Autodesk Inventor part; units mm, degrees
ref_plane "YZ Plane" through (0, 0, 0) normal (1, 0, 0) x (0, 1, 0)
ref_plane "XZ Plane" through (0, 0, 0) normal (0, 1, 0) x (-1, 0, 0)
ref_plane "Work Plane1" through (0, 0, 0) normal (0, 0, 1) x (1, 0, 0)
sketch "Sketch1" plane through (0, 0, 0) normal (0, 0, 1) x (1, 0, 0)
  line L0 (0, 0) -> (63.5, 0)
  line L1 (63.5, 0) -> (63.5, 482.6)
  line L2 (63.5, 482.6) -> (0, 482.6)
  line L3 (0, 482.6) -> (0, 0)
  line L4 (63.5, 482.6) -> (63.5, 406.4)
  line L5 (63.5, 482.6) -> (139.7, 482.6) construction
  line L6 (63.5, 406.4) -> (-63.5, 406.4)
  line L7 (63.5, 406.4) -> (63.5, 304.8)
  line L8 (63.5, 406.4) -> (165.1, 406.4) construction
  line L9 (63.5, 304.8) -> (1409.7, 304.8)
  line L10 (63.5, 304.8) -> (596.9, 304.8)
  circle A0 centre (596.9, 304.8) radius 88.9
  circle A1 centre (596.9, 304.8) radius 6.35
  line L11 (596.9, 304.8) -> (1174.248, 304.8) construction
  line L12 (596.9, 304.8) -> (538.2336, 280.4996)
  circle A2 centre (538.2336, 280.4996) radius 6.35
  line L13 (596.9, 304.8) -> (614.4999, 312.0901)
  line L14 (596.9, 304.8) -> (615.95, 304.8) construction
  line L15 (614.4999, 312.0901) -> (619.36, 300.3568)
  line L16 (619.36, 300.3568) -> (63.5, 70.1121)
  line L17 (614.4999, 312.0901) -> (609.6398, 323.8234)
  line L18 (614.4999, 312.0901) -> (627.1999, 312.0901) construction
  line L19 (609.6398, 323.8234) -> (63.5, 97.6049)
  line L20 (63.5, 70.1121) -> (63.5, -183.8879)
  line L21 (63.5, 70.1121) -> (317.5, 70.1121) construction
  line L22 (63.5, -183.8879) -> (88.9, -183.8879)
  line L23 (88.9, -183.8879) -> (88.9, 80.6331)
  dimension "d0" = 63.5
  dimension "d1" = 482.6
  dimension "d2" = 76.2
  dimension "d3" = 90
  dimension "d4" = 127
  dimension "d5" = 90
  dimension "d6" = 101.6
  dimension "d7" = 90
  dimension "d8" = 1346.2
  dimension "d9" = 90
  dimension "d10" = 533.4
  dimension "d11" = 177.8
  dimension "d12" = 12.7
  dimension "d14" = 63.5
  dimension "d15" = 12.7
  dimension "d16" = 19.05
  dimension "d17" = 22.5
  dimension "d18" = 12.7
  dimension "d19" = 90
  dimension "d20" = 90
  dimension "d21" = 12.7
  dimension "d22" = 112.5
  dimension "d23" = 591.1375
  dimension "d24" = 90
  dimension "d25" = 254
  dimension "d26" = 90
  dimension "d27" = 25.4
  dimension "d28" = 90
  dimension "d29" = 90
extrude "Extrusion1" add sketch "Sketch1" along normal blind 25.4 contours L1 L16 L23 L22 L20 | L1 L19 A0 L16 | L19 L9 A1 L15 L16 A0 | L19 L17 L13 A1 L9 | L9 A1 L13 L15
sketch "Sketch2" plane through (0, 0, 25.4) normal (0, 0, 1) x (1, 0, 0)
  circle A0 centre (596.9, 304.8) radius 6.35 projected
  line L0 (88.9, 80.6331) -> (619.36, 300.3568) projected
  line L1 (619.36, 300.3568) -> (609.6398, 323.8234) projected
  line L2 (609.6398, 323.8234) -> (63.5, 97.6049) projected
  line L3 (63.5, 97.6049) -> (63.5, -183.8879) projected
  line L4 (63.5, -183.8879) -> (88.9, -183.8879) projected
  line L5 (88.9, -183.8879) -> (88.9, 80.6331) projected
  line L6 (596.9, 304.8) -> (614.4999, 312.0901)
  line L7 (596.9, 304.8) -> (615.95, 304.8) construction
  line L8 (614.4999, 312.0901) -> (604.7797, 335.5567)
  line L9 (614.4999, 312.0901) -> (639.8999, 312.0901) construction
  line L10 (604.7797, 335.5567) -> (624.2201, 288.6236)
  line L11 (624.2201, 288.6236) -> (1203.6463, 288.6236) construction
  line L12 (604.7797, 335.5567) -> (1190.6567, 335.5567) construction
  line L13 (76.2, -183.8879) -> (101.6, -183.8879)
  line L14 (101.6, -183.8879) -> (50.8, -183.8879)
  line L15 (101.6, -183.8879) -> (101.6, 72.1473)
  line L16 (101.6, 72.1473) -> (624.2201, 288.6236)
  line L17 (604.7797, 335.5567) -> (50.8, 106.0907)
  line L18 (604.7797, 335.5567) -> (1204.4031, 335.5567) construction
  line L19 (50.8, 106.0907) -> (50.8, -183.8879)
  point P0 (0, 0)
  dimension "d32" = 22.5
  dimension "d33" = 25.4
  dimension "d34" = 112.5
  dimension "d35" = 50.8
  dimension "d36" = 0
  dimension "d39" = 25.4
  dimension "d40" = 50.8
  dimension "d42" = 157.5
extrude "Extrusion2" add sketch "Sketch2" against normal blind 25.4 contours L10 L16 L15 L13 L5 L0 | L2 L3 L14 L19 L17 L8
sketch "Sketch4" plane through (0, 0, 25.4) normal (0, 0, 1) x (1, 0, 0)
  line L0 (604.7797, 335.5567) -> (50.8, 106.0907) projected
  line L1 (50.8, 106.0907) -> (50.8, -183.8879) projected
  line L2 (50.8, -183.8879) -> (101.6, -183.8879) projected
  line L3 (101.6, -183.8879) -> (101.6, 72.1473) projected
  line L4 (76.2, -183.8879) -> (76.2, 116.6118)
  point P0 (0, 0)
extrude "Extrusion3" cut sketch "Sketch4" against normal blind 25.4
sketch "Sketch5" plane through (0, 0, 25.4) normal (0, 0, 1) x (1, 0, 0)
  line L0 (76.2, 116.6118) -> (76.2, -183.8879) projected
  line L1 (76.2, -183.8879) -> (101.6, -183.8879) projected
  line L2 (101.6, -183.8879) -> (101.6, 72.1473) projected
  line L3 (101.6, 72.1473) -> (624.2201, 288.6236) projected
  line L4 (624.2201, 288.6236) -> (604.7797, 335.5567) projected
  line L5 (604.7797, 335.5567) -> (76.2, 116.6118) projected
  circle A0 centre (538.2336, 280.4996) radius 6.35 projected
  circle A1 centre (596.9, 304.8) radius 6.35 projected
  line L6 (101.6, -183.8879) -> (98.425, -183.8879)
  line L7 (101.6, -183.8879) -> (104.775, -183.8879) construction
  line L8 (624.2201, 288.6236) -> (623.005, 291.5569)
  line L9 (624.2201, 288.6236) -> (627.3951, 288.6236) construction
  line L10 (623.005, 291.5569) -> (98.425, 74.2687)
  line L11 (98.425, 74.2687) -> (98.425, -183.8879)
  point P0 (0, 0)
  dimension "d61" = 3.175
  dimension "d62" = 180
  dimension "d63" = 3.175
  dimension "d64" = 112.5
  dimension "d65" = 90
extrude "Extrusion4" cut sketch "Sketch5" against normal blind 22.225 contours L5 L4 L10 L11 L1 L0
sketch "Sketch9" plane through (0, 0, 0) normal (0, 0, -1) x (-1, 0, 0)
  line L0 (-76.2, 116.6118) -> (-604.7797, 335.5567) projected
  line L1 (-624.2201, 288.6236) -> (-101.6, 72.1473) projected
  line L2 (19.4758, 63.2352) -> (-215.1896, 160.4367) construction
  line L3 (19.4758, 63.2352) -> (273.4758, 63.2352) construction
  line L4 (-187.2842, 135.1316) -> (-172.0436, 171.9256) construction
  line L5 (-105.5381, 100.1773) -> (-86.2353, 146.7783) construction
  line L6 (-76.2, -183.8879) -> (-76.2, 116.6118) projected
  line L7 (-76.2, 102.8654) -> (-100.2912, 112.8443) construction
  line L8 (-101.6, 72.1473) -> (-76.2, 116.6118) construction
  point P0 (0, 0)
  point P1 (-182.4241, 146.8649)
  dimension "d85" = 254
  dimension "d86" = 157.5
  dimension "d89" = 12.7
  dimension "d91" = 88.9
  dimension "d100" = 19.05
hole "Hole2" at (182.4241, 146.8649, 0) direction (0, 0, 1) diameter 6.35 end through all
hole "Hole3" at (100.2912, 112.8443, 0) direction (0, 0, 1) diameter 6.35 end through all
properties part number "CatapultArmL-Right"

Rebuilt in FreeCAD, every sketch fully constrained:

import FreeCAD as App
import Part
import Sketcher
Q = App.Units.Quantity


def add_polygon(sketch, points):
    """Adds a closed chain of lines whose ends are joined by coincident constraints."""
    first, n = sketch.GeometryCount, len(points)
    for a, b in zip(points, points[1:] + points[:1]):
        sketch.addGeometry(Part.LineSegment(App.Vector(*a, 0), App.Vector(*b, 0)), False)
    for i in range(n):
        sketch.addConstraint(Sketcher.Constraint("Coincident", first + i, 2, first + (i + 1) % n, 1))

doc = App.newDocument("Part")
body = doc.addObject("PartDesign::Body", "Body")

sketch1 = doc.addObject("Sketcher::SketchObject", "Sketch")
body.addObject(sketch1)
sketch1.AttachmentSupport = (doc.XY_Plane, [""])
sketch1.MapMode = "FlatFace"
add_polygon(sketch1, [(64, -184), (89, -184), (89, 81), (619, 300), (610, 324), (64, 98)])
sketch1.addGeometry(Part.Circle(App.Vector(597, 305, 0), App.Vector(0, 0, 1), 6), False)
sketch1.addGeometry(Part.Circle(App.Vector(538, 280, 0), App.Vector(0, 0, 1), 6), False)
sketch1.addConstraint([
    Sketcher.Constraint("Horizontal", 0),
    Sketcher.Constraint("Vertical", 1),
    Sketcher.Constraint("Vertical", 5),
    Sketcher.Constraint("Equal", 6, 7),
    Sketcher.Constraint("Perpendicular", 2, 3),
    Sketcher.Constraint("Perpendicular", 3, 4),
    Sketcher.Constraint("Diameter", 6, Q("0.5 in")),
    Sketcher.Constraint("DistanceX", 0, 1, 0, 2, Q("1 in")),
    Sketcher.Constraint("Distance", 3, Q("1 in")),
    Sketcher.Constraint("DistanceX", 4, 2, 6, 3, Q("21 in")),
    Sketcher.Constraint("DistanceX", -1, 1, 4, 2, Q("2.5 in")),
    Sketcher.Constraint("Angle", 2, Q("22.5 deg")),
    Sketcher.Constraint("DistanceY", -1, 1, 6, 3, Q("12 in")),
    Sketcher.Constraint("Distance", 4, Q("591.1375 mm")),
    Sketcher.Constraint("DistanceY", 5, 2, 5, 1, Q("11.0824 in")),
    Sketcher.Constraint("DistanceX", -1, 1, 7, 3, Q("21.1903 in")),
    Sketcher.Constraint("DistanceY", -1, 1, 7, 3, Q("11.0433 in")),
    Sketcher.Constraint("DistanceY", 0, 2, -1, 1, Q("183.888 mm")),
])
pad1 = doc.addObject("PartDesign::Pad", "Pad")
body.addObject(pad1)
pad1.Profile = sketch1
pad1.Length = Q("1 in")

sketch2 = doc.addObject("Sketcher::SketchObject", "Sketch001")
body.addObject(sketch2)
sketch2.AttachmentSupport = (doc.XY_Plane, [""])
sketch2.MapMode = "FlatFace"
sketch2.AttachmentOffset = App.Placement(App.Vector(0, 0, 1 * 25.4), App.Rotation())
add_polygon(sketch2, [(624, 289), (619, 300), (89, 81), (89, -184), (102, -184), (102, 72)])
add_polygon(sketch2, [(64, 98), (610, 324), (605, 336), (51, 106), (51, -184), (64, -184)])
sketch2.addConstraint([
    Sketcher.Constraint("Vertical", 2),
    Sketcher.Constraint("Horizontal", 3),
    Sketcher.Constraint("Vertical", 4),
    Sketcher.Constraint("Vertical", 9),
    Sketcher.Constraint("Horizontal", 10),
    Sketcher.Constraint("Vertical", 11),
    Sketcher.Constraint("Perpendicular", 0, 1),
    Sketcher.Constraint("Parallel", 1, 5),
    Sketcher.Constraint("Parallel", 5, 6),
    Sketcher.Constraint("Perpendicular", 6, 7),
    Sketcher.Constraint("Perpendicular", 7, 8),
    Sketcher.Constraint("Horizontal", 3, 2, 9, 2),
    Sketcher.Constraint("Equal", 3, 10),
    Sketcher.Constraint("Equal", 0, 7),
    Sketcher.Constraint("DistanceX", -1, 1, 8, 2, Q("2 in")),
    Sketcher.Constraint("DistanceX", 8, 2, 4, 2, Q("2 in")),
    Sketcher.Constraint("DistanceX", 10, 2, 2, 2, Q("1 in")),
    Sketcher.Constraint("Angle", 0, Q("112.5 deg")),
    Sketcher.Constraint("Distance", 0, Q("0.5 in")),
    Sketcher.Constraint("DistanceY", 11, 1, 11, 2, Q("11.0824 in")),
    Sketcher.Constraint("DistanceY", 2, 2, 2, 1, Q("264.521 mm")),
    Sketcher.Constraint("DistanceX", -1, 1, 5, 2, Q("24.5756 in")),
    Sketcher.Constraint("DistanceY", -1, 1, 7, 2, Q("13.2109 in")),
    Sketcher.Constraint("DistanceY", -1, 1, 8, 2, Q("4.1768 in")),
])
pad2 = doc.addObject("PartDesign::Pad", "Pad001")
body.addObject(pad2)
pad2.Profile = sketch2
pad2.Length = Q("1 in")
pad2.Reversed = True

sketch3 = doc.addObject("Sketcher::SketchObject", "Sketch002")
body.addObject(sketch3)
sketch3.AttachmentSupport = (doc.XY_Plane, [""])
sketch3.MapMode = "FlatFace"
sketch3.AttachmentOffset = App.Placement(App.Vector(0, 0, 1 * 25.4), App.Rotation())
add_polygon(sketch3, [(76, -184), (76, 117), (51, 106), (51, -184)])
sketch3.addConstraint([
    Sketcher.Constraint("Vertical", 0),
    Sketcher.Constraint("Vertical", 2),
    Sketcher.Constraint("Horizontal", 3),
    Sketcher.Constraint("DistanceX", 3, 1, 3, 2, Q("1 in")),
    Sketcher.Constraint("DistanceX", -1, 1, 0, 2, Q("3 in")),
    Sketcher.Constraint("Angle", 1, Q("-157.5 deg")),
    Sketcher.Constraint("DistanceY", 0, 1, 0, 2, Q("11.8307 in")),
    Sketcher.Constraint("DistanceY", -1, 1, 1, 2, Q("4.1768 in")),
])
pocket1 = doc.addObject("PartDesign::Pocket", "Pocket")
body.addObject(pocket1)
pocket1.Profile = sketch3
pocket1.Length = Q("1 in")

sketch4 = doc.addObject("Sketcher::SketchObject", "Sketch003")
body.addObject(sketch4)
sketch4.AttachmentSupport = (doc.XY_Plane, [""])
sketch4.MapMode = "FlatFace"
sketch4.AttachmentOffset = App.Placement(App.Vector(0, 0, 1 * 25.4), App.Rotation())
add_polygon(sketch4, [(605, 336), (76, 117), (76, -184), (98, -184), (98, 74), (623, 292)])
sketch4.addGeometry(Part.Circle(App.Vector(538, 280, 0), App.Vector(0, 0, 1), 6), False)
sketch4.addGeometry(Part.Circle(App.Vector(597, 305, 0), App.Vector(0, 0, 1), 6), False)
sketch4.addConstraint([
    Sketcher.Constraint("Vertical", 1),
    Sketcher.Constraint("Horizontal", 2),
    Sketcher.Constraint("Vertical", 3),
    Sketcher.Constraint("Equal", 6, 7),
    Sketcher.Constraint("Parallel", 0, 4),
    Sketcher.Constraint("Perpendicular", 4, 5),
    Sketcher.Constraint("Diameter", 6, Q("0.5 in")),
    Sketcher.Constraint("Angle", 5, Q("112.5 deg")),
    Sketcher.Constraint("DistanceY", -1, 1, 7, 3, Q("12 in")),
    Sketcher.Constraint("DistanceX", -1, 1, 0, 2, Q("3 in")),
    Sketcher.Constraint("DistanceX", -1, 1, 7, 3, Q("23.5 in")),
    Sketcher.Constraint("DistanceX", 2, 1, 2, 2, Q("0.875 in")),
    Sketcher.Constraint("Distance", 5, Q("1.875 in")),
    Sketcher.Constraint("DistanceY", 1, 2, 1, 1, Q("11.8307 in")),
    Sketcher.Constraint("DistanceX", -1, 1, 6, 3, Q("21.1903 in")),
    Sketcher.Constraint("DistanceY", -1, 1, 6, 3, Q("11.0433 in")),
    Sketcher.Constraint("DistanceY", -1, 1, 5, 2, Q("13.2109 in")),
    Sketcher.Constraint("DistanceY", 0, 2, 4, 2, Q("6.8876 in")),
])
pocket2 = doc.addObject("PartDesign::Pocket", "Pocket001")
body.addObject(pocket2)
pocket2.Profile = sketch4
pocket2.Length = Q("0.875 in")

sketch5 = doc.addObject("Sketcher::SketchObject", "Sketch004")
body.addObject(sketch5)
sketch5.AttachmentSupport = (doc.XY_Plane, [""])
sketch5.MapMode = "FlatFace"
sketch5.addGeometry(Part.Circle(App.Vector(182.4, 146.9, 0), App.Vector(0, 0, 1), 3.2), False)
sketch5.addConstraint([
    Sketcher.Constraint("Diameter", 0, Q("0.25 in")),
    Sketcher.Constraint("DistanceX", -1, 1, 0, 3, Q("182.424 mm")),
    Sketcher.Constraint("DistanceY", -1, 1, 0, 3, Q("146.865 mm")),
])
doc.recompute()
hole = doc.addObject("PartDesign::Hole", "Hole")
body.addObject(hole)
hole.Profile = sketch5
hole.ThreadType = "None"
hole.Diameter = Q("0.25 in")
hole.DepthType = "ThroughAll"
hole.Reversed = True

sketch6 = doc.addObject("Sketcher::SketchObject", "Sketch005")
body.addObject(sketch6)
sketch6.AttachmentSupport = (doc.XY_Plane, [""])
sketch6.MapMode = "FlatFace"
sketch6.addGeometry(Part.Circle(App.Vector(100.3, 112.8, 0), App.Vector(0, 0, 1), 3.2), False)
sketch6.addConstraint([
    Sketcher.Constraint("Diameter", 0, Q("0.25 in")),
    Sketcher.Constraint("DistanceY", -1, 1, 0, 3, Q("4.4427 in")),
    Sketcher.Constraint("DistanceX", -1, 1, 0, 3, Q("100.2912 mm")),
])
doc.recompute()
hole2 = doc.addObject("PartDesign::Hole", "Hole001")
body.addObject(hole2)
hole2.Profile = sketch6
hole2.ThreadType = "None"
hole2.Diameter = Q("0.25 in")
hole2.DepthType = "ThroughAll"
hole2.Reversed = True

doc.recompute()
